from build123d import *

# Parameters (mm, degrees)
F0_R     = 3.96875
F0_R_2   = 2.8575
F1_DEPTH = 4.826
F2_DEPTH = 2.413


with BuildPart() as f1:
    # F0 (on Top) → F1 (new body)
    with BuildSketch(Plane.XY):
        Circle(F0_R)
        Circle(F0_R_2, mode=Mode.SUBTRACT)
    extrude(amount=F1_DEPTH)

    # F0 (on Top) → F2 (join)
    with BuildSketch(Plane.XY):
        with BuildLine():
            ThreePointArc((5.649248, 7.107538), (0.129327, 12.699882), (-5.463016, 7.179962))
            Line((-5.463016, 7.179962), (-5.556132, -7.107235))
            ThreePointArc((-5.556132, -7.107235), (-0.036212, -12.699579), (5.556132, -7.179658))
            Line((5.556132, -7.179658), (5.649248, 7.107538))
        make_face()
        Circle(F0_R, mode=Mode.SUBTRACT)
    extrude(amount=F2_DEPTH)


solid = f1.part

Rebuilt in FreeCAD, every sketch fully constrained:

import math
import FreeCAD as App
import Part
import Sketcher
Q = App.Units.Quantity

doc = App.newDocument("Part")
body = doc.addObject("PartDesign::Body", "Body")

# Sketch on XY plane
sketch1 = body.newObject("Sketcher::SketchObject", "Sketch")
sketch1.AttachmentSupport = (doc.getObject("XY_Plane"), [""])
sketch1.MapMode = "FlatFace"
sketch1.addGeometry([
    Part.Circle(App.Vector(0, 0, 0), App.Vector(0, 0, 1), 3.96875),
    Part.Circle(App.Vector(0, 0, 0), App.Vector(0, 0, 1), 2.8575),
], False)
sketch1.addConstraint([
    Sketcher.Constraint("Coincident", 0, 3, -1, 1),
    Sketcher.Constraint("Coincident", 1, 3, -1, 1),
    Sketcher.Constraint("Diameter", 0, Q("0.3125 in")),
    Sketcher.Constraint("Diameter", 1, Q("0.225 in")),
])
pad1 = body.newObject("PartDesign::Pad", "Pad")
pad1.Profile = sketch1
pad1.Length = Q("0.19 in")

# Sketch on XY plane
sketch2 = body.newObject("Sketcher::SketchObject", "Sketch001")
sketch2.AttachmentSupport = (doc.getObject("XY_Plane"), [""])
sketch2.MapMode = "FlatFace"
sketch2.addGeometry([
    Part.ArcOfCircle(Part.Circle(App.Vector(0.093116, 7.14375, 0), App.Vector(0, 0, 1), 5.55625), math.radians(-0.373419), math.radians(179.626581)),  # 0
    Part.LineSegment(App.Vector(-5.463016, 7.179962, 0), App.Vector(-5.556132, -7.107235, 0)),  # 1
    Part.ArcOfCircle(Part.Circle(App.Vector(0, -7.143447, 0), App.Vector(0, 0, 1), 5.55625), math.radians(179.626581), math.radians(359.626591)),  # 2
    Part.LineSegment(App.Vector(5.556132, -7.179658, 0), App.Vector(5.649248, 7.107538, 0)),  # 3
    Part.Circle(App.Vector(0, 0, 0), App.Vector(0, 0, 1), 3.96875),  # 4
], False)
sketch2.addConstraint([
    Sketcher.Constraint("Tangent", 0, 2, 1, 1),
    Sketcher.Constraint("Tangent", 1, 2, 2, 1),
    Sketcher.Constraint("Tangent", 2, 2, 3, 1),
    Sketcher.Constraint("Tangent", 3, 2, 0, 1),
    Sketcher.Constraint("Coincident", 4, 3, -1, 1),
    Sketcher.Constraint("Equal", 0, 2),
    Sketcher.Constraint("PointOnObject", 2, 3, -2),
    Sketcher.Constraint("Diameter", 4, Q("0.3125 in")),
    Sketcher.Constraint("Radius", 0, Q("0.21875 in")),
    Sketcher.Constraint("Distance", 1, Q("0.5625 in")),
    Sketcher.Constraint("DistanceY", -1, 1, 0, 3, Q("0.28125 in")),
    Sketcher.Constraint("DistanceY", -1, 1, 0, 2, 7.179962),
])
pad2 = body.newObject("PartDesign::Pad", "Pad001")
pad2.Profile = sketch2
pad2.Length = Q("0.095 in")

doc.recompute()
